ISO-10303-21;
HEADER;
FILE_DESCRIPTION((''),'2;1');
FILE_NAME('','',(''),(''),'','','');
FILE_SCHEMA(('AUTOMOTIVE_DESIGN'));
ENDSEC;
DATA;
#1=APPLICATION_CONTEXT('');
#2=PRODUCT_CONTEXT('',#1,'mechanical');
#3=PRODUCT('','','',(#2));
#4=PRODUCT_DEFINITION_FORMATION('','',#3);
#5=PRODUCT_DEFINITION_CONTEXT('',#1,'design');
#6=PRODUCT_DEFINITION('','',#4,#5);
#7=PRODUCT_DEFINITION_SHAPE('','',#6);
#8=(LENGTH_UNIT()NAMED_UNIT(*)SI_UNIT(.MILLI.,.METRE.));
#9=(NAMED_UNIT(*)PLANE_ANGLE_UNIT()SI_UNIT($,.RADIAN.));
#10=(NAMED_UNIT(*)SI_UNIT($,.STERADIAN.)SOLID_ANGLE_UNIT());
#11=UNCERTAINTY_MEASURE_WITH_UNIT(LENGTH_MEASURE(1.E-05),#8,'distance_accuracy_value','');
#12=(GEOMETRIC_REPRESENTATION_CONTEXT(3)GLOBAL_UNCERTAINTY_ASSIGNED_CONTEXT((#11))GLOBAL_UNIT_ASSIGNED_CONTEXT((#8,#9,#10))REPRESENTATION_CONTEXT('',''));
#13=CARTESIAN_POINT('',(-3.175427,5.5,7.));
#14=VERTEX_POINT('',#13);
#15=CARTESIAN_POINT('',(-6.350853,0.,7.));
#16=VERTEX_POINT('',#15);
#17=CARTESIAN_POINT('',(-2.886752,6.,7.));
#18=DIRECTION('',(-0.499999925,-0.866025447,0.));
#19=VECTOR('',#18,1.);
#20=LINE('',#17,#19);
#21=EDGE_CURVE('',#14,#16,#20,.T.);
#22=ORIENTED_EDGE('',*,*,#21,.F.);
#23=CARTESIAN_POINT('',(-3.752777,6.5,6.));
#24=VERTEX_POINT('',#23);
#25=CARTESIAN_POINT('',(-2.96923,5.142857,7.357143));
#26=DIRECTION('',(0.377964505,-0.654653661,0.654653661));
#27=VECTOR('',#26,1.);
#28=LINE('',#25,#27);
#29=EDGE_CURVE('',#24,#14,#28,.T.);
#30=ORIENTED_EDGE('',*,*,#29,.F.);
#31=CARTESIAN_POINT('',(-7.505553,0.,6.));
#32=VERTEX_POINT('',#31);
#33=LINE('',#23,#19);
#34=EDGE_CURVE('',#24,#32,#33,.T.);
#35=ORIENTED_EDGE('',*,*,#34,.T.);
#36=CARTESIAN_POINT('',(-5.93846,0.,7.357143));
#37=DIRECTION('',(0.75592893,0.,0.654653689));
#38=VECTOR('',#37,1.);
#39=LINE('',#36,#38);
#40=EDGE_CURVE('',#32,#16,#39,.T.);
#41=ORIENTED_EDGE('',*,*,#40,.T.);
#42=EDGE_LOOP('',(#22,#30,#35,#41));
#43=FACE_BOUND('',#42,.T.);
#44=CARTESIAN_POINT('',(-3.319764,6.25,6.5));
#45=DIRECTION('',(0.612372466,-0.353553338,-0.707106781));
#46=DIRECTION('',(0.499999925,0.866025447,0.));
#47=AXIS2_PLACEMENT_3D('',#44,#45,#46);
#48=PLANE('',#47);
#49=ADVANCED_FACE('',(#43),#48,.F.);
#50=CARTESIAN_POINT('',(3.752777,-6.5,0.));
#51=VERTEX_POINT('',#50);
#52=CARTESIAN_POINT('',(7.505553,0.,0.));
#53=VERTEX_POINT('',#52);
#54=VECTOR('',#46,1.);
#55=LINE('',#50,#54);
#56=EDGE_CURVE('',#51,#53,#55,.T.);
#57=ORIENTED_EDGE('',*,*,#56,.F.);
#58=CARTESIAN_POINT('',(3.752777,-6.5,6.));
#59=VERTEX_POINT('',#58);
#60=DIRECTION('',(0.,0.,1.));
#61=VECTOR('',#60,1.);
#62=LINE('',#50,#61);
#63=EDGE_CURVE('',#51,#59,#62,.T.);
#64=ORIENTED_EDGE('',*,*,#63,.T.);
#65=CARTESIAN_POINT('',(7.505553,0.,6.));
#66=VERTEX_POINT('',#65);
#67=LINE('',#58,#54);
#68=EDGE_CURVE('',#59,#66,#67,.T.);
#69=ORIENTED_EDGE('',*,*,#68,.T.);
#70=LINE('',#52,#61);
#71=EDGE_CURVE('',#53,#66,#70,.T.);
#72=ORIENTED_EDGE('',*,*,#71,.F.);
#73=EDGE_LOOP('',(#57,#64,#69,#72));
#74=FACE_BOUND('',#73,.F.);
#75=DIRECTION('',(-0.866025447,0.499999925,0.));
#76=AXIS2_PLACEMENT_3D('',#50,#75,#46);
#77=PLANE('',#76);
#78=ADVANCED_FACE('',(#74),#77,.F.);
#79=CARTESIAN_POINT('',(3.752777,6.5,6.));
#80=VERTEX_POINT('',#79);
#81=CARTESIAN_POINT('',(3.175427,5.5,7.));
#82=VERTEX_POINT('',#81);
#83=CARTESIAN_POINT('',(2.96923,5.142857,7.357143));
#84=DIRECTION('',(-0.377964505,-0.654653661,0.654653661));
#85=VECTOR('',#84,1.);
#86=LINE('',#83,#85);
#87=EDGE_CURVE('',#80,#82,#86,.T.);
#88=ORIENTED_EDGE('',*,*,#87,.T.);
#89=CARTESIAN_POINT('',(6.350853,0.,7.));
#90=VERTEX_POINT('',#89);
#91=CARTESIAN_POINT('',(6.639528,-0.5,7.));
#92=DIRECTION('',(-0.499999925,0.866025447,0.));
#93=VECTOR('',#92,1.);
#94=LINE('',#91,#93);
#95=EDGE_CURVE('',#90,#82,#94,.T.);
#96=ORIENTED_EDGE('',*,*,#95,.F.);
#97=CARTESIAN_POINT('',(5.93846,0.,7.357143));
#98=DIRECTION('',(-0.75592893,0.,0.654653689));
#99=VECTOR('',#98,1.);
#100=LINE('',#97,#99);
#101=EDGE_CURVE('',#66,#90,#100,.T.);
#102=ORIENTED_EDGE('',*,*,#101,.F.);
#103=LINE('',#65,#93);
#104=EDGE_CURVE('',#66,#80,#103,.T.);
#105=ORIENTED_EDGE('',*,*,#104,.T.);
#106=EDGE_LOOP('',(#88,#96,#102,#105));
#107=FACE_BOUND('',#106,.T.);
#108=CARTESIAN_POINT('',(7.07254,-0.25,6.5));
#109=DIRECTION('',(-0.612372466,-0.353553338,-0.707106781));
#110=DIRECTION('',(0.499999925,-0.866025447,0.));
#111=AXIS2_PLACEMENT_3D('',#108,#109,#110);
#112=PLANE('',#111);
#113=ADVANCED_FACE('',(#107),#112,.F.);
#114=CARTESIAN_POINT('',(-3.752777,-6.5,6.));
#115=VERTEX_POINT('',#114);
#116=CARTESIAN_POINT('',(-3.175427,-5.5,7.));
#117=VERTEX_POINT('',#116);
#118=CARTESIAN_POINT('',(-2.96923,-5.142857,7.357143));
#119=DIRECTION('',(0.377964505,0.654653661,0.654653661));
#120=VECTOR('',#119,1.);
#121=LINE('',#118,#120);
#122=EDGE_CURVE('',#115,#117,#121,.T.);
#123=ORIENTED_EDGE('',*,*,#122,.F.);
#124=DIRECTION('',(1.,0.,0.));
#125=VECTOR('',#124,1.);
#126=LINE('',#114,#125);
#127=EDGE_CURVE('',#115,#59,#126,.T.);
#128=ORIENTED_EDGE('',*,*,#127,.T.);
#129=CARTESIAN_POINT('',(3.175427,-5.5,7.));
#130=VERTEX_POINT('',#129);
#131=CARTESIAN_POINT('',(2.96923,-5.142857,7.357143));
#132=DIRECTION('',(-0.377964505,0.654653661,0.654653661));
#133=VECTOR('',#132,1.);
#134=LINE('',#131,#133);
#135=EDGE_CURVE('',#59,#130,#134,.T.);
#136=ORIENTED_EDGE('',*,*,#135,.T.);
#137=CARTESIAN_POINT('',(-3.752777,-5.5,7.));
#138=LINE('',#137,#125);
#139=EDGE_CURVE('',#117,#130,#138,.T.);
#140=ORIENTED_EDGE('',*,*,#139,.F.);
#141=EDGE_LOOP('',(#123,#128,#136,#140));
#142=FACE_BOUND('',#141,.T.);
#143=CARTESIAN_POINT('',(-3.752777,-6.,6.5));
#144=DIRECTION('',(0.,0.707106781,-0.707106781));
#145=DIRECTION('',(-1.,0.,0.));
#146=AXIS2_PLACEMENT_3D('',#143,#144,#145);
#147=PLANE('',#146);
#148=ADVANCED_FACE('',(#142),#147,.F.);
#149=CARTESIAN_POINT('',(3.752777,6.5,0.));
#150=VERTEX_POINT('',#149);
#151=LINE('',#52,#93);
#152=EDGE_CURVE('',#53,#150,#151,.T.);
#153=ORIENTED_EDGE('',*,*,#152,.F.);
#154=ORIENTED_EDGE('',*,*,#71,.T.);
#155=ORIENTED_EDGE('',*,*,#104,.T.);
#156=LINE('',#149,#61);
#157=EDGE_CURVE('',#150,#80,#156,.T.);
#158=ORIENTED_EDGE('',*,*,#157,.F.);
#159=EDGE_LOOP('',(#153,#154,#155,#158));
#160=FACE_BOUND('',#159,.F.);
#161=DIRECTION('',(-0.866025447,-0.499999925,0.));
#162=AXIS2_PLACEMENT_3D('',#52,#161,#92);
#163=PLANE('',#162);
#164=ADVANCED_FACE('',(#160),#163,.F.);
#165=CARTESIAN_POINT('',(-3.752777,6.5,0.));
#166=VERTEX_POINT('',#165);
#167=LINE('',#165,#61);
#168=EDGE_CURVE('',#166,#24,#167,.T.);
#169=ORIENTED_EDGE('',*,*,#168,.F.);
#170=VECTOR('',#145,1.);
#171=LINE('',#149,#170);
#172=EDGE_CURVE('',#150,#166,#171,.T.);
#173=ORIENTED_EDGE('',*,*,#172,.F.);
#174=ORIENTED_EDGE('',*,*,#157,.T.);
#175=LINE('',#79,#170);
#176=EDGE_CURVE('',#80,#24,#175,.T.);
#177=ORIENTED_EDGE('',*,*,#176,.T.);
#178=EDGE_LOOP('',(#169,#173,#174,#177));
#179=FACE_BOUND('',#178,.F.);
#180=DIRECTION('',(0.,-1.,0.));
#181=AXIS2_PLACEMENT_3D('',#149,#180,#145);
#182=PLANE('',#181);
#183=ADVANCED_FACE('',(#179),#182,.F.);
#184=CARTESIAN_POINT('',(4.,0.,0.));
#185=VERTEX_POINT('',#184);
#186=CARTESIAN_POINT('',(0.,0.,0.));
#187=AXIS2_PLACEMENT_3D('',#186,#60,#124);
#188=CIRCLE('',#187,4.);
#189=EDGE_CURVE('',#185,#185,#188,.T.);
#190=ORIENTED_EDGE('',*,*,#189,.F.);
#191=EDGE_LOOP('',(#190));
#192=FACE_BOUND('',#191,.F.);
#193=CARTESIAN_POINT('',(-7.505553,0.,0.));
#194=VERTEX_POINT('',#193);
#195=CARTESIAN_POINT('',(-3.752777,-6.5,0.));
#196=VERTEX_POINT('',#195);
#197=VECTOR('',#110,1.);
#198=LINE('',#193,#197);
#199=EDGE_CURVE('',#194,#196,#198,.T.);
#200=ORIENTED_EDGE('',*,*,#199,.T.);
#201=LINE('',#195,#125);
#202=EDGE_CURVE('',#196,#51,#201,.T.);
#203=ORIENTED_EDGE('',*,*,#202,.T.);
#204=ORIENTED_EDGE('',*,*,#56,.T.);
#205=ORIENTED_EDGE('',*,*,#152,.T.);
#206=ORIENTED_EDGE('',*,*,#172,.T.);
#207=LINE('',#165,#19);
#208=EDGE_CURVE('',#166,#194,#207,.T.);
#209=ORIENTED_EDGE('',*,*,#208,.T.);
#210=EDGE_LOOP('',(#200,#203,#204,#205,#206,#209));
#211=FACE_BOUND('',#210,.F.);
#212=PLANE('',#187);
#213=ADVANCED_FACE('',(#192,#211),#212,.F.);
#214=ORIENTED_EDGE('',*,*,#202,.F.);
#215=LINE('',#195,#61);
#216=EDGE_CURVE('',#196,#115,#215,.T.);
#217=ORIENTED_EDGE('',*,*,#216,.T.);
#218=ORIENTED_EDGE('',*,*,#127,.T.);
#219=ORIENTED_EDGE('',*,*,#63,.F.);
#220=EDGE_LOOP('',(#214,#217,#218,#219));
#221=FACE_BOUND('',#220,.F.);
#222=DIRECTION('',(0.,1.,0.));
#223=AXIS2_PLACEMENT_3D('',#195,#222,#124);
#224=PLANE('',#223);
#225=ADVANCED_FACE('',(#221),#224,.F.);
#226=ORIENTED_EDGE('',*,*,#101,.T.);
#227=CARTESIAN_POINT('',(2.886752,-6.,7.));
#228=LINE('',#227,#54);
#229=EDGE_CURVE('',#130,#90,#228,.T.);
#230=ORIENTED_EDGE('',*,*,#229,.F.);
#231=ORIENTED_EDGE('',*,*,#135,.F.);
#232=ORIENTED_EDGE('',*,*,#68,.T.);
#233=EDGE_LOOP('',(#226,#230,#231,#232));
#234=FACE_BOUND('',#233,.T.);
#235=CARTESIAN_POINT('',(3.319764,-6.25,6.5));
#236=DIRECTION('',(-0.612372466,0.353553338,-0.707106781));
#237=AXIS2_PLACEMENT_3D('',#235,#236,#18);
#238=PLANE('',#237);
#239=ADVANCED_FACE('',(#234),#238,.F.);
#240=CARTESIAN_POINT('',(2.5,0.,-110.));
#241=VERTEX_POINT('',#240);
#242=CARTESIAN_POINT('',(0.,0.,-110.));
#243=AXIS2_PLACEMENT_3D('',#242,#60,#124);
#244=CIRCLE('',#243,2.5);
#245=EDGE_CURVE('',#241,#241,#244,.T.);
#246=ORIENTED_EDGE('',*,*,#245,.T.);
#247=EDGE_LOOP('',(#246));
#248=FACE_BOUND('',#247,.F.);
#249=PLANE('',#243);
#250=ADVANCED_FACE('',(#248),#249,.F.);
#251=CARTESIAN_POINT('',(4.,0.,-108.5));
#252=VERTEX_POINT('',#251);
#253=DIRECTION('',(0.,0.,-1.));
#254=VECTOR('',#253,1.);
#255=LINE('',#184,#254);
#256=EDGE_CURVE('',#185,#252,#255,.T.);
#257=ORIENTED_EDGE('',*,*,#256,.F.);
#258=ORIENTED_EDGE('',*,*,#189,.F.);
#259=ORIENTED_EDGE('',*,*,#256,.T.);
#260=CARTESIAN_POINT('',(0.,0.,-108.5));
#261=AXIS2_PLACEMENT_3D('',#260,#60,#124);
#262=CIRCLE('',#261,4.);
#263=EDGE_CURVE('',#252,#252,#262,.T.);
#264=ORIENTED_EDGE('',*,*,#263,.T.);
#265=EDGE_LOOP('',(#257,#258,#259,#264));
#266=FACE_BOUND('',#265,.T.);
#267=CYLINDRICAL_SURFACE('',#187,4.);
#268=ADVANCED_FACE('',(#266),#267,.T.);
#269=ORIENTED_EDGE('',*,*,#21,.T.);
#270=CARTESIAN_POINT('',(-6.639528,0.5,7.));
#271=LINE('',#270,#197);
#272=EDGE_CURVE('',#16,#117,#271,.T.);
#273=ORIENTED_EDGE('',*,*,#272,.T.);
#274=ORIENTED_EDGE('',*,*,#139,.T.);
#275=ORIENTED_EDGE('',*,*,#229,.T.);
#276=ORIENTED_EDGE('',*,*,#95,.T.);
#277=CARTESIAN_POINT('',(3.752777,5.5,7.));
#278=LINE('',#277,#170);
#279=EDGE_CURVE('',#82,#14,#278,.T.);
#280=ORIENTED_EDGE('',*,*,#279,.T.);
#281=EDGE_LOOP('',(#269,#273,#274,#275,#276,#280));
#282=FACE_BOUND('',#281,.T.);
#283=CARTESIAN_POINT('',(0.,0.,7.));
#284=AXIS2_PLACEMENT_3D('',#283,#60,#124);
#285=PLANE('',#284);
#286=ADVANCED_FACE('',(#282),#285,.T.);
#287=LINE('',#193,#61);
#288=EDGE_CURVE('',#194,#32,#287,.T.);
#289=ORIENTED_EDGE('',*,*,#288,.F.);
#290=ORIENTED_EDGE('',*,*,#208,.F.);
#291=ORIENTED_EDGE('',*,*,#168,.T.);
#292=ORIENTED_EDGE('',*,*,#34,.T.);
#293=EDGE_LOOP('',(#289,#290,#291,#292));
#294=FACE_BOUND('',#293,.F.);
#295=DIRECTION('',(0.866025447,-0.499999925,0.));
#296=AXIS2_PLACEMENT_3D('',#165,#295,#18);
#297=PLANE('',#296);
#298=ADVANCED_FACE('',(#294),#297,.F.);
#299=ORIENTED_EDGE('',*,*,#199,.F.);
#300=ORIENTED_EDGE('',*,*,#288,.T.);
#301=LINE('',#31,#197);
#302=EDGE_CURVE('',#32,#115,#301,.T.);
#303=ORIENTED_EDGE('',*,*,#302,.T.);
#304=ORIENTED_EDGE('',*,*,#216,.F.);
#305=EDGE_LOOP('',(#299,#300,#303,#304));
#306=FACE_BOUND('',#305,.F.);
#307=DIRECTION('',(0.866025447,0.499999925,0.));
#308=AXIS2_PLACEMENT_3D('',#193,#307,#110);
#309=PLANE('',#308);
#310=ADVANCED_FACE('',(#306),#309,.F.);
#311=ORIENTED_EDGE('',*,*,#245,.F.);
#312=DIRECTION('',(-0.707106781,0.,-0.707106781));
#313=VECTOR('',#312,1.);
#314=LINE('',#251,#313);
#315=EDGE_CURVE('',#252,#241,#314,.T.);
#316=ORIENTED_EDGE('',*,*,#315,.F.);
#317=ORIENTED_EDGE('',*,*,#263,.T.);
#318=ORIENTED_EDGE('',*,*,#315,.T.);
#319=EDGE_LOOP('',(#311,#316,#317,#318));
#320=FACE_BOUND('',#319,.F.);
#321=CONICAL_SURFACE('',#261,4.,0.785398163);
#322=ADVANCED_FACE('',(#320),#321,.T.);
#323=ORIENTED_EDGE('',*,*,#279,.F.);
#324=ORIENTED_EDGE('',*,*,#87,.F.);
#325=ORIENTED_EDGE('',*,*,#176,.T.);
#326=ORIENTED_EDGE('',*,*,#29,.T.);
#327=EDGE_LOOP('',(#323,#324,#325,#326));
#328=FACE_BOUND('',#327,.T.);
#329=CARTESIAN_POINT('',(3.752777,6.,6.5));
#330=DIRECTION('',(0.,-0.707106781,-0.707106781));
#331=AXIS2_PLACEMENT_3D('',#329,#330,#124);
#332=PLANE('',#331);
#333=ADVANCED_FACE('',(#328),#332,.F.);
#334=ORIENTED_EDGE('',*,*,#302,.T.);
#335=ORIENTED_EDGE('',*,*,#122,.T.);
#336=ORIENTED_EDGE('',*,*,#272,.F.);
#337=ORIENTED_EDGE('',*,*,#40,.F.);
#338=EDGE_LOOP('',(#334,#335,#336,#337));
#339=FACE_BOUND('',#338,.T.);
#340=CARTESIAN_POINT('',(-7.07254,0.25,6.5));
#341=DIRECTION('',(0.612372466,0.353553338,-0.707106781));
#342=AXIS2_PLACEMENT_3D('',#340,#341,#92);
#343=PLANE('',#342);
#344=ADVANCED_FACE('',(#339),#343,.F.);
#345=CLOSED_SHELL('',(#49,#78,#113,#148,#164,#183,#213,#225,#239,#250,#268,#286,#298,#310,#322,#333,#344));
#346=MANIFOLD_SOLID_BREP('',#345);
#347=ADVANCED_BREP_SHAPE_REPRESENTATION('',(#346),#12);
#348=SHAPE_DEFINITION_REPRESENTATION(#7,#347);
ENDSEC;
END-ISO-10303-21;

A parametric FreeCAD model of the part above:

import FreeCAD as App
import Part
import Sketcher

V = App.Vector
Q = App.Units.Quantity


def edges_at(feature, points):
    """Names of the edges that pass closest to the given points."""
    edges = feature.Shape.Edges
    near = lambda p: min(range(len(edges)), key=lambda i: edges[i].distToShape(Part.Vertex(*p))[0])
    return sorted({f"Edge{near(p) + 1}" for p in points})

doc = App.newDocument("Part")
params = doc.addObject("Spreadsheet::Sheet", "Params")
for row, (alias, value) in enumerate([
    ("pad1_length", "7 mm"),
    ("sketch2_diameter", "8 mm"),
    ("pad2_length", "110 mm"),
    ("chamfer_size", "1.5 mm"),
    ("chamfer2_size", "1 mm"),
    ("chamfer2_size2", "1 mm"),
], start=1):
    params.set(f"A{row}", alias)
    params.set(f"B{row}", "=" + value)
    params.setAlias(f"B{row}", alias)

body = doc.addObject("PartDesign::Body", "Body")

# Sketch on XY plane
sketch1 = doc.addObject("Sketcher::SketchObject", "Sketch")
body.addObject(sketch1)
sketch1.AttachmentSupport = (doc.XY_Plane, [""])
sketch1.MapMode = "FlatFace"
sketch1.addGeometry([
    Part.LineSegment(V(3.752777, 6.5, 0), V(-3.752777, 6.5, 0)),  # 0
    Part.LineSegment(V(-3.752777, 6.5, 0), V(-7.505553, 0, 0)),  # 1
    Part.LineSegment(V(-7.505553, 0, 0), V(-3.752777, -6.5, 0)),  # 2
    Part.LineSegment(V(-3.752777, -6.5, 0), V(3.752777, -6.5, 0)),  # 3
    Part.LineSegment(V(3.752777, -6.5, 0), V(7.505553, 0, 0)),  # 4
    Part.LineSegment(V(7.505553, 0, 0), V(3.752777, 6.5, 0)),  # 5
], False)
sketch1.addConstraint([
    Sketcher.Constraint("Coincident", 0, 2, 1, 1),
    Sketcher.Constraint("Coincident", 1, 2, 2, 1),
    Sketcher.Constraint("Coincident", 2, 2, 3, 1),
    Sketcher.Constraint("Coincident", 3, 2, 4, 1),
    Sketcher.Constraint("Coincident", 4, 2, 5, 1),
    Sketcher.Constraint("Coincident", 5, 2, 0, 1),
    Sketcher.Constraint("Horizontal", 0),
    Sketcher.Constraint("Horizontal", 3),
    Sketcher.Constraint("Symmetric", 0, 2, 3, 2, -1, 1),
    Sketcher.Constraint("Symmetric", 1, 2, 4, 2, -1, 1),
    Sketcher.Constraint("PointOnObject", 1, 2, -1),
    Sketcher.Constraint("Parallel", 2, 5),
    Sketcher.Constraint("Vertical", 0, 2, 2, 2),
    Sketcher.Constraint("Angle", 1, Q("-119.999995 deg")),
    Sketcher.Constraint("DistanceY", 2, 2, 0, 2, 13.0),
    Sketcher.Constraint("DistanceX", 0, 2, 0, 1, 7.505554),
])
pad1 = doc.addObject("PartDesign::Pad", "Pad")
body.addObject(pad1)
pad1.Profile = sketch1
pad1.setExpression("Length", "Params.pad1_length")

# Sketch on XY plane
sketch2 = doc.addObject("Sketcher::SketchObject", "Sketch001")
body.addObject(sketch2)
sketch2.AttachmentSupport = (doc.XY_Plane, [""])
sketch2.MapMode = "FlatFace"
sketch2.addGeometry(Part.Circle(V(0, 0, 0), V(0, 0, 1), 4), False)
sketch2.addConstraint([
    Sketcher.Constraint("Coincident", 0, 3, -1, 1),
    Sketcher.Constraint("Diameter", 0, 8.0),
])
sketch2.setExpression("Constraints[1]", "Params.sketch2_diameter")
pad2 = doc.addObject("PartDesign::Pad", "Pad001")
body.addObject(pad2)
pad2.Profile = sketch2
pad2.setExpression("Length", "Params.pad2_length")
pad2.Reversed = True
doc.recompute()

chamfer = doc.addObject("PartDesign::Chamfer", "Chamfer")
body.addObject(chamfer)
chamfer.Base = (pad2, edges_at(pad2, [(-4, 0, -110)]))
chamfer.setExpression("Size", "Params.chamfer_size")
doc.recompute()

chamfer2 = doc.addObject("PartDesign::Chamfer", "Chamfer001")
body.addObject(chamfer2)
chamfer2.Base = (chamfer, edges_at(chamfer, [
    (5.629, 3.25, 7),
    (0, 6.5, 7),
    (-5.629, 3.25, 7),
    (-5.629, -3.25, 7),
    (0, -6.5, 7),
    (5.629, -3.25, 7),
]))
chamfer2.ChamferType = "Two distances"
chamfer2.setExpression("Size", "Params.chamfer2_size")
chamfer2.setExpression("Size2", "Params.chamfer2_size2")

doc.recompute()
